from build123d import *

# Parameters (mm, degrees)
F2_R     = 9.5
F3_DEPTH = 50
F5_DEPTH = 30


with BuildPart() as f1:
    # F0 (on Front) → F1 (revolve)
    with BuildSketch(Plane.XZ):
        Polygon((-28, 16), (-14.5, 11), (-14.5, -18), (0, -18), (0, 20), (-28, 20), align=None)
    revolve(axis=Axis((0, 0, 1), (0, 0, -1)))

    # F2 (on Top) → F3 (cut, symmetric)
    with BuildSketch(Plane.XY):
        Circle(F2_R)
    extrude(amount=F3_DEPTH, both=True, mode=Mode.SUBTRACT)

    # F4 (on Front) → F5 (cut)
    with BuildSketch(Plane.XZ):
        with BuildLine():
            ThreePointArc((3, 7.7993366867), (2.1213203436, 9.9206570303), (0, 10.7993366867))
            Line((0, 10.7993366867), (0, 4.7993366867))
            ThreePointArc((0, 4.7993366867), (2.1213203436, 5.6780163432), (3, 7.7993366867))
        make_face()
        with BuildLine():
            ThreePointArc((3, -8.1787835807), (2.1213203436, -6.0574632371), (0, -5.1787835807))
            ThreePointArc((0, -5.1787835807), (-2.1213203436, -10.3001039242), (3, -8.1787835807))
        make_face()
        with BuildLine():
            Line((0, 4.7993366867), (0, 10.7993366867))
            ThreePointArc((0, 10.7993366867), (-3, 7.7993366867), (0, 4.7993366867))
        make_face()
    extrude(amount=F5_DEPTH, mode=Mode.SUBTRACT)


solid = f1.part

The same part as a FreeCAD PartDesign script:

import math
import FreeCAD as App
import Part
import Sketcher
from FreeCAD import Vector
Q = App.Units.Quantity

doc = App.newDocument("Part")
body = doc.addObject("PartDesign::Body", "Body")

# Sketch on XZ plane
sketch1 = body.newObject("Sketcher::SketchObject", "Sketch")
sketch1.AttachmentSupport = (doc.getObject("XZ_Plane"), [""])
sketch1.MapMode = "FlatFace"
sketch1.addGeometry(Part.LineSegment(Vector(-28, 16, 0), Vector(-14.5, 11, 0)), False)
sketch1.addGeometry(Part.LineSegment(Vector(-14.5, 11, 0), Vector(-14.5, -18, 0)), False)
sketch1.addGeometry(Part.LineSegment(Vector(-14.5, -18, 0), Vector(0, -18, 0)), False)
sketch1.addGeometry(Part.LineSegment(Vector(0, -18, 0), Vector(0, 20, 0)), False)
sketch1.addGeometry(Part.LineSegment(Vector(0, 20, 0), Vector(-28, 20, 0)), False)
sketch1.addGeometry(Part.LineSegment(Vector(-28, 20, 0), Vector(-28, 16, 0)), False)
sketch1.addConstraint(Sketcher.Constraint("Coincident", 0, 2, 1, 1))
sketch1.addConstraint(Sketcher.Constraint("Coincident", 1, 2, 2, 1))
sketch1.addConstraint(Sketcher.Constraint("Coincident", 2, 2, 3, 1))
sketch1.addConstraint(Sketcher.Constraint("Coincident", 3, 2, 4, 1))
sketch1.addConstraint(Sketcher.Constraint("Coincident", 4, 2, 5, 1))
sketch1.addConstraint(Sketcher.Constraint("Coincident", 5, 2, 0, 1))
sketch1.addConstraint(Sketcher.Constraint("Vertical", 1))
sketch1.addConstraint(Sketcher.Constraint("Horizontal", 2))
sketch1.addConstraint(Sketcher.Constraint("Vertical", 3))
sketch1.addConstraint(Sketcher.Constraint("Horizontal", 4))
sketch1.addConstraint(Sketcher.Constraint("Vertical", 5))
sketch1.addConstraint(Sketcher.Constraint("PointOnObject", 2, 2, -2))
sketch1.addConstraint(Sketcher.Constraint("DistanceX", 4, 2, 4, 1, Q("28 mm")))
sketch1.addConstraint(Sketcher.Constraint("DistanceY", 1, 2, 1, 1, Q("29 mm")))
sketch1.addConstraint(Sketcher.Constraint("DistanceY", 3, 1, 3, 2, Q("38 mm")))
sketch1.addConstraint(Sketcher.Constraint("DistanceY", 5, 2, 5, 1, Q("4 mm")))
sketch1.addConstraint(Sketcher.Constraint("DistanceX", 2, 1, 2, 2, Q("14.5 mm")))
sketch1.addConstraint(Sketcher.Constraint("DistanceY", -1, 1, 0, 2, Q("11 mm")))
revolution = body.newObject("PartDesign::Revolution", "Revolution")
revolution.Profile = sketch1
revolution.ReferenceAxis = (sketch1, ["V_Axis"])
revolution.Angle = 360

# Sketch on XY plane
sketch2 = body.newObject("Sketcher::SketchObject", "Sketch001")
sketch2.AttachmentSupport = (doc.getObject("XY_Plane"), [""])
sketch2.MapMode = "FlatFace"
sketch2.addGeometry(Part.Circle(Vector(0, 0, 0), Vector(0, 0, 1), 10), False)
sketch2.addConstraint(Sketcher.Constraint("Coincident", 0, 3, -1, 1))
sketch2.addConstraint(Sketcher.Constraint("Diameter", 0, Q("19 mm")))
pocket1 = body.newObject("PartDesign::Pocket", "Pocket")
pocket1.Profile = sketch2
pocket1.Length = 100
pocket1.Midplane = True

# Sketch on XZ plane
sketch3 = body.newObject("Sketcher::SketchObject", "Sketch002")
sketch3.AttachmentSupport = (doc.getObject("XZ_Plane"), [""])
sketch3.MapMode = "FlatFace"
sketch3.addGeometry(Part.ArcOfCircle(Part.Circle(Vector(0, 7.8, 0), Vector(0, 0, 1), 3), math.radians(0), math.radians(90)), False)
sketch3.addGeometry(Part.ArcOfCircle(Part.Circle(Vector(0, 7.8, 0), Vector(0, 0, 1), 3), math.radians(90), math.radians(270)), False)
sketch3.addGeometry(Part.ArcOfCircle(Part.Circle(Vector(0, 7.8, 0), Vector(0, 0, 1), 3), math.radians(-90), math.radians(0)), False)
sketch3.addGeometry(Part.ArcOfCircle(Part.Circle(Vector(0, -8.2, 0), Vector(0, 0, 1), 3), math.radians(0), math.radians(90)), False)
sketch3.addGeometry(Part.ArcOfCircle(Part.Circle(Vector(0, -8.2, 0), Vector(0, 0, 1), 3), math.radians(90), math.radians(360)), False)
sketch3.addConstraint(Sketcher.Constraint("Tangent", 0, 2, 1, 1))
sketch3.addConstraint(Sketcher.Constraint("Tangent", 1, 2, 2, 1))
sketch3.addConstraint(Sketcher.Constraint("Tangent", 2, 2, 0, 1))
sketch3.addConstraint(Sketcher.Constraint("Tangent", 3, 1, 4, 2))
sketch3.addConstraint(Sketcher.Constraint("Coincident", 4, 1, 3, 2))
sketch3.addConstraint(Sketcher.Constraint("Equal", 2, 3))
sketch3.addConstraint(Sketcher.Constraint("PointOnObject", 0, 3, -2))
sketch3.addConstraint(Sketcher.Constraint("PointOnObject", 3, 3, -2))
sketch3.addConstraint(Sketcher.Constraint("PointOnObject", 0, 2, -2))
sketch3.addConstraint(Sketcher.Constraint("PointOnObject", 1, 2, -2))
sketch3.addConstraint(Sketcher.Constraint("PointOnObject", 4, 1, -2))
sketch3.addConstraint(Sketcher.Constraint("Horizontal", 1, 3, 2, 2))
sketch3.addConstraint(Sketcher.Constraint("Horizontal", 4, 3, 3, 1))
sketch3.addConstraint(Sketcher.Constraint("Radius", 0, Q("3 mm")))
sketch3.addConstraint(Sketcher.Constraint("DistanceY", 3, 3, 0, 3, Q("15.97812 mm")))
sketch3.addConstraint(Sketcher.Constraint("DistanceY", -1, 1, 0, 3, Q("7.799337 mm")))
pocket2 = body.newObject("PartDesign::Pocket", "Pocket001")
pocket2.Profile = sketch3
pocket2.Length = 30
pocket2.Reversed = True

doc.recompute()
